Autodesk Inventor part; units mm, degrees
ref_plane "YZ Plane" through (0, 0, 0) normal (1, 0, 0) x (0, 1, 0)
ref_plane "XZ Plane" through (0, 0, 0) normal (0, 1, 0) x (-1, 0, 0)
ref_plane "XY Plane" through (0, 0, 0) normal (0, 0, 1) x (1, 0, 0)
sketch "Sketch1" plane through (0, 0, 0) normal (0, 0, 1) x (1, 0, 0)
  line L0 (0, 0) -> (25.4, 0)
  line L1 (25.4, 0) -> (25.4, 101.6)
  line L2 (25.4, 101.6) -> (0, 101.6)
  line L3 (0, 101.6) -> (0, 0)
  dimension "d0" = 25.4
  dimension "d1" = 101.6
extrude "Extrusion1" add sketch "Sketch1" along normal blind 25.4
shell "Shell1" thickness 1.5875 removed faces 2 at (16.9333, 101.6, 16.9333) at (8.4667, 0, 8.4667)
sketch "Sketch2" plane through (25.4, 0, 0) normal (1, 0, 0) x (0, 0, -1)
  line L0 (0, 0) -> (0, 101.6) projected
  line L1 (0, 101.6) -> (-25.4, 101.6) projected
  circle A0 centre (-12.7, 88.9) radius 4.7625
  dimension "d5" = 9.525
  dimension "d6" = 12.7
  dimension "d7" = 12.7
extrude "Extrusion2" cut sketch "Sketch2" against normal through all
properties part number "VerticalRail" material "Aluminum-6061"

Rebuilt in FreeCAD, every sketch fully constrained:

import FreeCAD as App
import Part
import Sketcher
from FreeCAD import Vector
Q = App.Units.Quantity


def faces_at(feature, points):
    """Names of the faces that lie closest to the given points."""
    faces = feature.Shape.Faces
    near = lambda p: min(range(len(faces)), key=lambda i: faces[i].distToShape(Part.Vertex(*p))[0])
    return sorted({f"Face{near(p) + 1}" for p in points})

doc = App.newDocument("Part")
body = doc.addObject("PartDesign::Body", "Body")

# Sketch on XY plane
sketch1 = doc.addObject("Sketcher::SketchObject", "Sketch")
body.addObject(sketch1)
sketch1.AttachmentSupport = (doc.XY_Plane, [""])
sketch1.MapMode = "FlatFace"
sketch1.addGeometry(Part.LineSegment(Vector(0, 101.6, 0), Vector(0, 0, 0)), False)
sketch1.addGeometry(Part.LineSegment(Vector(0, 0, 0), Vector(25.4, 0, 0)), False)
sketch1.addGeometry(Part.LineSegment(Vector(25.4, 0, 0), Vector(25.4, 101.6, 0)), False)
sketch1.addGeometry(Part.LineSegment(Vector(25.4, 101.6, 0), Vector(0, 101.6, 0)), False)
sketch1.addConstraint(Sketcher.Constraint("Coincident", 0, 2, 1, 1))
sketch1.addConstraint(Sketcher.Constraint("Coincident", 1, 2, 2, 1))
sketch1.addConstraint(Sketcher.Constraint("Coincident", 2, 2, 3, 1))
sketch1.addConstraint(Sketcher.Constraint("Coincident", 3, 2, 0, 1))
sketch1.addConstraint(Sketcher.Constraint("Vertical", 0))
sketch1.addConstraint(Sketcher.Constraint("Horizontal", 1))
sketch1.addConstraint(Sketcher.Constraint("Vertical", 2))
sketch1.addConstraint(Sketcher.Constraint("Horizontal", 3))
sketch1.addConstraint(Sketcher.Constraint("Coincident", 0, 2, -1, 1))
sketch1.addConstraint(Sketcher.Constraint("DistanceX", 1, 1, 1, 2, Q("1 in")))
sketch1.addConstraint(Sketcher.Constraint("DistanceY", 0, 2, 0, 1, Q("4 in")))
pad1 = doc.addObject("PartDesign::Pad", "Pad")
body.addObject(pad1)
pad1.Profile = sketch1
pad1.Length = Q("1 in")
doc.recompute()

thickness = doc.addObject("PartDesign::Thickness", "Thickness")
body.addObject(thickness)
thickness.Base = (pad1, faces_at(pad1, [(16.933, 101.6, 16.933), (8.467, 0, 8.467)]))
thickness.Value = Q("0.0625 in")
thickness.Reversed = True
thickness.Join = "Intersection"

# Sketch on YZ plane
sketch2 = doc.addObject("Sketcher::SketchObject", "Sketch001")
body.addObject(sketch2)
sketch2.AttachmentSupport = (doc.YZ_Plane, [""])
sketch2.MapMode = "FlatFace"
sketch2.AttachmentOffset = App.Placement(Vector(0, 0, 1 * 25.4), App.Rotation())
sketch2.addGeometry(Part.Circle(Vector(88.9, 12.7, 0), Vector(0, 0, 1), 4.7625), False)
sketch2.addConstraint(Sketcher.Constraint("Diameter", 0, Q("0.375 in")))
sketch2.addConstraint(Sketcher.Constraint("DistanceY", -1, 1, 0, 3, Q("0.5 in")))
sketch2.addConstraint(Sketcher.Constraint("DistanceX", -1, 1, 0, 3, Q("3.5 in")))
pocket1 = doc.addObject("PartDesign::Pocket", "Pocket")
body.addObject(pocket1)
pocket1.Profile = sketch2
pocket1.Type = "ThroughAll"

doc.recompute()
